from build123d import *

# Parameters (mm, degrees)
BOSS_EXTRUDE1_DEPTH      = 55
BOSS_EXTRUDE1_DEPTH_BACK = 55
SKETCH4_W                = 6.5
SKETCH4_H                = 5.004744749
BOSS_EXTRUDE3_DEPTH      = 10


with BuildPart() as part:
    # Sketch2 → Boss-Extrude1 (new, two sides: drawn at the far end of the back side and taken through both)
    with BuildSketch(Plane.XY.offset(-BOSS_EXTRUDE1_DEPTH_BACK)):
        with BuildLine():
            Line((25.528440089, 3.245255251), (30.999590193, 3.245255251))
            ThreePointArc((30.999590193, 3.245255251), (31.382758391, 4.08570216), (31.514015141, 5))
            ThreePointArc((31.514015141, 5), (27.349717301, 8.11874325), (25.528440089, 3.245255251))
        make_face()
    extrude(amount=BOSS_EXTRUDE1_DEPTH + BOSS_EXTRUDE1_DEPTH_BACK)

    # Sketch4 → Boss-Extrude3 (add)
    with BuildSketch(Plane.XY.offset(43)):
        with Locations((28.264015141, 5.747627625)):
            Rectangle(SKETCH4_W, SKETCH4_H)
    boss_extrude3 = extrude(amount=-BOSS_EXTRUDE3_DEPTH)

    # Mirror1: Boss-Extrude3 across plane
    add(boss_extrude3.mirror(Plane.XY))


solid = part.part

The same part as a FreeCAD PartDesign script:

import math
import FreeCAD as App
import Part
import Sketcher

V = App.Vector
Q = App.Units.Quantity

doc = App.newDocument("Part")
params = doc.addObject("Spreadsheet::Sheet", "Params")
for row, (alias, value) in enumerate([
    ("sketch1_radius", "3.25 mm"),
    ("pad1_length", "55 mm"),
    ("pad1_length2", "55 mm"),
    ("sketch2_width", "6.5 mm"),
    ("pad2_length", "10 mm"),
], start=1):
    params.set(f"A{row}", alias)
    params.set(f"B{row}", "=" + value)
    params.setAlias(f"B{row}", alias)

body = doc.addObject("PartDesign::Body", "Body")

sketch1 = body.newObject("Sketcher::SketchObject", "Sketch")
sketch1.AttachmentSupport = (doc.getObject("XY_Plane"), [""])
sketch1.MapMode = "FlatFace"
sketch1.addGeometry(Part.LineSegment(V(25.5, 3.2, 0), V(31, 3.2, 0)), False)
sketch1.addGeometry(Part.ArcOfCircle(Part.Circle(V(28.3, 5, 0), V(0, 0, 1), 3.2), math.radians(-33), math.radians(0)), False)
sketch1.addGeometry(Part.ArcOfCircle(Part.Circle(V(28.3, 5, 0), V(0, 0, 1), 3.2), math.radians(0), math.radians(213)), False)
sketch1.addConstraint(Sketcher.Constraint("Coincident", 0, 2, 1, 1))
sketch1.addConstraint(Sketcher.Constraint("Tangent", 1, 2, 2, 1))
sketch1.addConstraint(Sketcher.Constraint("Coincident", 2, 2, 0, 1))
sketch1.addConstraint(Sketcher.Constraint("Horizontal", 0))
sketch1.addConstraint(Sketcher.Constraint("Equal", 1, 2))
sketch1.addConstraint(Sketcher.Constraint("Horizontal", 2, 3, 1, 2))
sketch1.addConstraint(Sketcher.Constraint("Radius", 1, Q("3.25 mm")))
sketch1.addConstraint(Sketcher.Constraint("DistanceY", -1, 1, 1, 3, Q("5 mm")))
sketch1.addConstraint(Sketcher.Constraint("DistanceX", 0, 1, 0, 2, Q("5.47115 mm")))
sketch1.addConstraint(Sketcher.Constraint("DistanceX", -1, 1, 0, 2, Q("30.99959 mm")))
sketch1.setExpression("Constraints[6]", "Params.sketch1_radius")
pad1 = body.newObject("PartDesign::Pad", "Pad")
pad1.Profile = sketch1
pad1.Type = "TwoLengths"
pad1.setExpression("Length", "Params.pad1_length")
pad1.setExpression("Length2", "Params.pad1_length2")

sketch2 = body.newObject("Sketcher::SketchObject", "Sketch001")
sketch2.AttachmentSupport = (doc.getObject("XY_Plane"), [""])
sketch2.MapMode = "FlatFace"
sketch2.AttachmentOffset = App.Placement(V(0, 0, 43), App.Rotation())
sketch2.addGeometry(Part.LineSegment(V(25, 8, 0), V(25, 3, 0)), False)
sketch2.addGeometry(Part.LineSegment(V(25, 3, 0), V(32, 3, 0)), False)
sketch2.addGeometry(Part.LineSegment(V(32, 3, 0), V(32, 8, 0)), False)
sketch2.addGeometry(Part.LineSegment(V(32, 8, 0), V(25, 8, 0)), False)
sketch2.addConstraint(Sketcher.Constraint("Coincident", 0, 2, 1, 1))
sketch2.addConstraint(Sketcher.Constraint("Coincident", 1, 2, 2, 1))
sketch2.addConstraint(Sketcher.Constraint("Coincident", 2, 2, 3, 1))
sketch2.addConstraint(Sketcher.Constraint("Coincident", 3, 2, 0, 1))
sketch2.addConstraint(Sketcher.Constraint("Vertical", 0))
sketch2.addConstraint(Sketcher.Constraint("Horizontal", 1))
sketch2.addConstraint(Sketcher.Constraint("Vertical", 2))
sketch2.addConstraint(Sketcher.Constraint("Horizontal", 3))
sketch2.addConstraint(Sketcher.Constraint("DistanceX", 1, 1, 1, 2, Q("6.5 mm")))
sketch2.addConstraint(Sketcher.Constraint("DistanceY", -1, 1, 2, 2, Q("8.25 mm")))
sketch2.addConstraint(Sketcher.Constraint("DistanceY", 0, 2, 0, 1, Q("5.004745 mm")))
sketch2.addConstraint(Sketcher.Constraint("DistanceX", -1, 1, 0, 2, Q("25.014015 mm")))
sketch2.setExpression("Constraints[8]", "Params.sketch2_width")
pad2 = body.newObject("PartDesign::Pad", "Pad001")
pad2.Profile = sketch2
pad2.setExpression("Length", "Params.pad2_length")
pad2.Reversed = True
doc.recompute()

mirrored = body.newObject("PartDesign::Mirrored", "Mirrored")
mirrored.Originals = [pad2]
mirrored.MirrorPlane = (doc.getObject("XY_Plane"), [""])
body.Tip = mirrored

doc.recompute()
